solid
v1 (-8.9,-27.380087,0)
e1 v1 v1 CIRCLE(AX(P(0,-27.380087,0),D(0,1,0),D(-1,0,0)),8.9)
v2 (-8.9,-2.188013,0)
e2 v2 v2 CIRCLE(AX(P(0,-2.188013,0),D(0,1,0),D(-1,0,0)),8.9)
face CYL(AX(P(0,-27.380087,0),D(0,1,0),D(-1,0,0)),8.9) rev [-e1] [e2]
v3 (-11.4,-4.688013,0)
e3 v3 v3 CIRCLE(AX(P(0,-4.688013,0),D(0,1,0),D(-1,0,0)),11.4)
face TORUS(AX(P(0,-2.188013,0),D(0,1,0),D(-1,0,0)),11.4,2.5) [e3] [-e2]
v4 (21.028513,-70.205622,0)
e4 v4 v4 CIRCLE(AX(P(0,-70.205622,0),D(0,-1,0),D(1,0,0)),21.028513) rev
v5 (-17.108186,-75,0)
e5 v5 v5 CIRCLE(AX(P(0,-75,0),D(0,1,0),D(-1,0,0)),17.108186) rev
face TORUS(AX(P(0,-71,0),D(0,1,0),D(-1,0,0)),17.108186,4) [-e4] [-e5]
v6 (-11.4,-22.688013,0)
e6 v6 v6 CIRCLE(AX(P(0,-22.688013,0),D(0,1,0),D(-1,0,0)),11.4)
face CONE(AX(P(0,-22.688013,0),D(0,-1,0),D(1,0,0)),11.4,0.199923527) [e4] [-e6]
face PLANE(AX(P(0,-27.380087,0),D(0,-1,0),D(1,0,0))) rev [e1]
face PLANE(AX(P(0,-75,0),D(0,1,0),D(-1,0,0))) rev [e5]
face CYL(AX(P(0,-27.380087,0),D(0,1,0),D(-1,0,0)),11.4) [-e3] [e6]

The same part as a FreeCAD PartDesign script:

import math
import FreeCAD as App
import Part
import Sketcher
from FreeCAD import Vector
Q = App.Units.Quantity


def edges_at(feature, points):
    """Names of the edges that pass closest to the given points."""
    edges = feature.Shape.Edges
    near = lambda p: min(range(len(edges)), key=lambda i: edges[i].distToShape(Part.Vertex(*p))[0])
    return sorted({f"Edge{near(p) + 1}" for p in points})

doc = App.newDocument("Part")
body = doc.addObject("PartDesign::Body", "Body")

# Sketch on XY plane
sketch1 = doc.addObject("Sketcher::SketchObject", "Sketch")
body.addObject(sketch1)
sketch1.AttachmentSupport = (doc.XY_Plane, [""])
sketch1.MapMode = "FlatFace"
sketch1.addGeometry([
    Part.ArcOfCircle(Part.Circle(Vector(11.4, -2.2, 0), Vector(0, 0, 1), 2.5), math.radians(61), math.radians(180)),  # 0
    Part.LineSegment(Vector(8.9, -2.2, 0), Vector(8.9, -27.4, 0)),  # 1
    Part.LineSegment(Vector(8.9, -27.4, 0), Vector(0, -27.4, 0)),  # 2
    Part.LineSegment(Vector(0, -27.4, 0), Vector(0, -75, 0)),  # 3
    Part.LineSegment(Vector(0, -75, 0), Vector(22, -75, 0)),  # 4
    Part.LineSegment(Vector(22, -75, 0), Vector(11.4, -22.7, 0)),  # 5
    Part.LineSegment(Vector(11.4, -22.7, 0), Vector(11.4, -4.7, 0)),  # 6
    Part.ArcOfCircle(Part.Circle(Vector(11.4, -2.2, 0), Vector(0, 0, 1), 2.5), math.radians(-90), math.radians(61)),  # 7
], False)
sketch1.addConstraint([
    Sketcher.Constraint("Tangent", 0, 2, 1, 1),
    Sketcher.Constraint("Coincident", 1, 2, 2, 1),
    Sketcher.Constraint("Coincident", 2, 2, 3, 1),
    Sketcher.Constraint("Coincident", 3, 2, 4, 1),
    Sketcher.Constraint("Coincident", 4, 2, 5, 1),
    Sketcher.Constraint("Coincident", 5, 2, 6, 1),
    Sketcher.Constraint("Coincident", 6, 2, 7, 1),
    Sketcher.Constraint("Tangent", 7, 2, 0, 1),
    Sketcher.Constraint("Vertical", 1),
    Sketcher.Constraint("Horizontal", 2),
    Sketcher.Constraint("Vertical", 3),
    Sketcher.Constraint("Horizontal", 4),
    Sketcher.Constraint("Vertical", 6),
    Sketcher.Constraint("Equal", 0, 7),
    Sketcher.Constraint("PointOnObject", 2, 2, -2),
    Sketcher.Constraint("PointOnObject", 7, 2, -1),
    Sketcher.Constraint("Vertical", 7, 3, 5, 2),
    Sketcher.Constraint("Radius", 0, Q("2.5 mm")),
    Sketcher.Constraint("DistanceX", 4, 1, 4, 2, Q("22 mm")),
    Sketcher.Constraint("DistanceY", 6, 1, 6, 2, Q("18 mm")),
    Sketcher.Constraint("DistanceX", 2, 2, 2, 1, Q("8.9 mm")),
    Sketcher.Constraint("DistanceY", 3, 2, -1, 1, Q("75 mm")),
    Sketcher.Constraint("DistanceY", 1, 2, 1, 1, Q("25.192074 mm")),
    Sketcher.Constraint("DistanceY", 3, 2, 3, 1, Q("47.619913 mm")),
])
revolution = doc.addObject("PartDesign::Revolution", "Revolution")
body.addObject(revolution)
revolution.Profile = sketch1
revolution.ReferenceAxis = (sketch1, ["V_Axis"])
revolution.Angle = 360
doc.recompute()

fillet = doc.addObject("PartDesign::Fillet", "Fillet")
body.addObject(fillet)
fillet.Base = (revolution, edges_at(revolution, [(22, -75, 0)]))
fillet.Radius = 4

doc.recompute()
